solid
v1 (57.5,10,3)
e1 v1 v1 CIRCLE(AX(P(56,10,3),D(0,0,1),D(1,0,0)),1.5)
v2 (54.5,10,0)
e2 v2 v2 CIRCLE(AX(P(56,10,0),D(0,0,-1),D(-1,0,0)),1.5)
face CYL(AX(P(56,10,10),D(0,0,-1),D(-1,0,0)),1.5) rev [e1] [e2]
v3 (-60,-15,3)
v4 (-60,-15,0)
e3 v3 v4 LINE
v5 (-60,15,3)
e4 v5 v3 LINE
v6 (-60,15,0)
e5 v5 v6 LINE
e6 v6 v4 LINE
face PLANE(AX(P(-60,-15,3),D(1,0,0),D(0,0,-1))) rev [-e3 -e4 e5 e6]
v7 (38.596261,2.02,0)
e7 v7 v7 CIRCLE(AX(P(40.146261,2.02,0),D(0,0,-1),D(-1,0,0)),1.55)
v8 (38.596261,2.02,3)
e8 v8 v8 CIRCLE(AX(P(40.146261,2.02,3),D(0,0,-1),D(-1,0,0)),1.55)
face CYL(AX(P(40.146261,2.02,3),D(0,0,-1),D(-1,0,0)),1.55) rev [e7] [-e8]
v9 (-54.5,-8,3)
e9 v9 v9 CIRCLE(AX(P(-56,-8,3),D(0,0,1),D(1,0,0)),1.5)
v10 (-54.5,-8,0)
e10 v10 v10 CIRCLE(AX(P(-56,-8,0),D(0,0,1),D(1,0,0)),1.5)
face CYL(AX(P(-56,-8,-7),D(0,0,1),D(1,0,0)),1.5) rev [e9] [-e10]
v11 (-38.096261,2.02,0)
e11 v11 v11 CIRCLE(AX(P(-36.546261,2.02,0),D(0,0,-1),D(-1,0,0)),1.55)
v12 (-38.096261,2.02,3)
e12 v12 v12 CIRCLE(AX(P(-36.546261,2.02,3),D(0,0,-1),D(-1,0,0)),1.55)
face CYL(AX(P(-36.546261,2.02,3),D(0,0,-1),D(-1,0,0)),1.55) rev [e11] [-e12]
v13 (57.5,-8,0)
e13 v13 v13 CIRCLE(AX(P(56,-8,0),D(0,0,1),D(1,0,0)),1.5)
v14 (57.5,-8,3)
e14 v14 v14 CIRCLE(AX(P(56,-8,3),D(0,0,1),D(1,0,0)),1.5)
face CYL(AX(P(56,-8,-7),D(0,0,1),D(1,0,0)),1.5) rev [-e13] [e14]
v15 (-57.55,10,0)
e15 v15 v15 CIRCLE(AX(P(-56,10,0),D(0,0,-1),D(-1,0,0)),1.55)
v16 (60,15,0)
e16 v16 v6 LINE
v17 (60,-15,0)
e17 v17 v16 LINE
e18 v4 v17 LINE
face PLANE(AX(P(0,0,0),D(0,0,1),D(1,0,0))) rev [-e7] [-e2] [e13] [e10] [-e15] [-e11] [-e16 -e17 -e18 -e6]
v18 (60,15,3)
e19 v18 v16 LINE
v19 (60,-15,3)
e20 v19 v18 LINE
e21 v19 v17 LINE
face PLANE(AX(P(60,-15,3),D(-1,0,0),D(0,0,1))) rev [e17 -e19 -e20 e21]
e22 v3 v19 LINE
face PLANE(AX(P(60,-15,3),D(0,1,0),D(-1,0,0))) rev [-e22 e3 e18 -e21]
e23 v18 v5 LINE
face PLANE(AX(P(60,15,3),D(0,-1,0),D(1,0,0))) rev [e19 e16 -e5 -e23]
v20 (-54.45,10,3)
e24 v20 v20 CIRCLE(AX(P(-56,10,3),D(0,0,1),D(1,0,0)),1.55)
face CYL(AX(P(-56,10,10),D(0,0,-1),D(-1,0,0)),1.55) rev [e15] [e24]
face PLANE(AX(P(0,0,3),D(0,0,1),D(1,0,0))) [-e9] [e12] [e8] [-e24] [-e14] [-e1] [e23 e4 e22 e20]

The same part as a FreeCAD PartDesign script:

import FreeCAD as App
import Part
import Sketcher
from FreeCAD import Vector
Q = App.Units.Quantity

doc = App.newDocument("Part")
body = doc.addObject("PartDesign::Body", "Body")

# Sketch on XY plane
sketch1 = body.newObject("Sketcher::SketchObject", "Sketch")
sketch1.AttachmentSupport = (doc.getObject("XY_Plane"), [""])
sketch1.MapMode = "FlatFace"
sketch1.addGeometry(Part.LineSegment(Vector(-60, 15, 0), Vector(-60, -15, 0)), False)
sketch1.addGeometry(Part.LineSegment(Vector(-60, -15, 0), Vector(60, -15, 0)), False)
sketch1.addGeometry(Part.LineSegment(Vector(60, -15, 0), Vector(60, 15, 0)), False)
sketch1.addGeometry(Part.LineSegment(Vector(60, 15, 0), Vector(-60, 15, 0)), False)
sketch1.addConstraint(Sketcher.Constraint("Coincident", 0, 2, 1, 1))
sketch1.addConstraint(Sketcher.Constraint("Coincident", 1, 2, 2, 1))
sketch1.addConstraint(Sketcher.Constraint("Coincident", 2, 2, 3, 1))
sketch1.addConstraint(Sketcher.Constraint("Coincident", 3, 2, 0, 1))
sketch1.addConstraint(Sketcher.Constraint("Vertical", 0))
sketch1.addConstraint(Sketcher.Constraint("Horizontal", 1))
sketch1.addConstraint(Sketcher.Constraint("Vertical", 2))
sketch1.addConstraint(Sketcher.Constraint("Horizontal", 3))
sketch1.addConstraint(Sketcher.Constraint("Symmetric", 0, 2, 2, 2, -1, 1))
sketch1.addConstraint(Sketcher.Constraint("DistanceX", 1, 1, 1, 2, Q("120 mm")))
sketch1.addConstraint(Sketcher.Constraint("DistanceY", 0, 2, 0, 1, Q("30 mm")))
pad1 = body.newObject("PartDesign::Pad", "Pad")
pad1.Profile = sketch1
pad1.Length = 3

# Sketch on XY plane
sketch2 = body.newObject("Sketcher::SketchObject", "Sketch001")
sketch2.AttachmentSupport = (doc.getObject("XY_Plane"), [""])
sketch2.MapMode = "FlatFace"
sketch2.addGeometry(Part.Circle(Vector(56, 10, 0), Vector(0, 0, 1), 1.5), False)
sketch2.addGeometry(Part.Circle(Vector(-56, 10, 0), Vector(0, 0, 1), 1.55), False)
sketch2.addConstraint(Sketcher.Constraint("Symmetric", 0, 3, 1, 3, -2))
sketch2.addConstraint(Sketcher.Constraint("Diameter", 0, Q("3 mm")))
sketch2.addConstraint(Sketcher.Constraint("Diameter", 1, Q("3.1 mm")))
sketch2.addConstraint(Sketcher.Constraint("DistanceX", -1, 1, 0, 3, Q("56 mm")))
sketch2.addConstraint(Sketcher.Constraint("DistanceY", -1, 1, 0, 3, Q("10 mm")))
pocket1 = body.newObject("PartDesign::Pocket", "Pocket")
pocket1.Profile = sketch2
pocket1.Length = 10
pocket1.Reversed = True

# Sketch on XY plane
sketch3 = body.newObject("Sketcher::SketchObject", "Sketch002")
sketch3.AttachmentSupport = (doc.getObject("XY_Plane"), [""])
sketch3.MapMode = "FlatFace"
sketch3.AttachmentOffset = App.Placement(Vector(0, 0, 3), App.Rotation())
sketch3.addGeometry(Part.Circle(Vector(-56, -8, 0), Vector(0, 0, 1), 1.5), False)
sketch3.addGeometry(Part.Circle(Vector(56, -8, 0), Vector(0, 0, 1), 1.5), False)
sketch3.addConstraint(Sketcher.Constraint("Equal", 0, 1))
sketch3.addConstraint(Sketcher.Constraint("Symmetric", 0, 3, 1, 3, -2))
sketch3.addConstraint(Sketcher.Constraint("Diameter", 0, Q("3 mm")))
sketch3.addConstraint(Sketcher.Constraint("DistanceX", 0, 3, -1, 1, Q("56 mm")))
sketch3.addConstraint(Sketcher.Constraint("DistanceY", 0, 3, -1, 1, Q("8 mm")))
pocket2 = body.newObject("PartDesign::Pocket", "Pocket001")
pocket2.Profile = sketch3
pocket2.Length = 10

# Sketch on XY plane
sketch4 = body.newObject("Sketcher::SketchObject", "Sketch003")
sketch4.AttachmentSupport = (doc.getObject("XY_Plane"), [""])
sketch4.MapMode = "FlatFace"
sketch4.addGeometry(Part.Circle(Vector(40.146261, 2.02, 0), Vector(0, 0, 1), 1.55), False)
sketch4.addGeometry(Part.Circle(Vector(-36.546261, 2.02, 0), Vector(0, 0, 1), 1.55), False)
sketch4.addConstraint(Sketcher.Constraint("Equal", 0, 1))
sketch4.addConstraint(Sketcher.Constraint("Horizontal", 0, 3, 1, 3))
sketch4.addConstraint(Sketcher.Constraint("Diameter", 0, Q("3.1 mm")))
sketch4.addConstraint(Sketcher.Constraint("DistanceY", -1, 1, 0, 3, Q("2.02 mm")))
sketch4.addConstraint(Sketcher.Constraint("DistanceX", -1, 1, 0, 3, Q("40.146261 mm")))
sketch4.addConstraint(Sketcher.Constraint("DistanceX", 1, 3, -1, 1, Q("36.546261 mm")))
pocket3 = body.newObject("PartDesign::Pocket", "Pocket002")
pocket3.Profile = sketch4
pocket3.Type = "ThroughAll"
pocket3.Reversed = True

doc.recompute()
